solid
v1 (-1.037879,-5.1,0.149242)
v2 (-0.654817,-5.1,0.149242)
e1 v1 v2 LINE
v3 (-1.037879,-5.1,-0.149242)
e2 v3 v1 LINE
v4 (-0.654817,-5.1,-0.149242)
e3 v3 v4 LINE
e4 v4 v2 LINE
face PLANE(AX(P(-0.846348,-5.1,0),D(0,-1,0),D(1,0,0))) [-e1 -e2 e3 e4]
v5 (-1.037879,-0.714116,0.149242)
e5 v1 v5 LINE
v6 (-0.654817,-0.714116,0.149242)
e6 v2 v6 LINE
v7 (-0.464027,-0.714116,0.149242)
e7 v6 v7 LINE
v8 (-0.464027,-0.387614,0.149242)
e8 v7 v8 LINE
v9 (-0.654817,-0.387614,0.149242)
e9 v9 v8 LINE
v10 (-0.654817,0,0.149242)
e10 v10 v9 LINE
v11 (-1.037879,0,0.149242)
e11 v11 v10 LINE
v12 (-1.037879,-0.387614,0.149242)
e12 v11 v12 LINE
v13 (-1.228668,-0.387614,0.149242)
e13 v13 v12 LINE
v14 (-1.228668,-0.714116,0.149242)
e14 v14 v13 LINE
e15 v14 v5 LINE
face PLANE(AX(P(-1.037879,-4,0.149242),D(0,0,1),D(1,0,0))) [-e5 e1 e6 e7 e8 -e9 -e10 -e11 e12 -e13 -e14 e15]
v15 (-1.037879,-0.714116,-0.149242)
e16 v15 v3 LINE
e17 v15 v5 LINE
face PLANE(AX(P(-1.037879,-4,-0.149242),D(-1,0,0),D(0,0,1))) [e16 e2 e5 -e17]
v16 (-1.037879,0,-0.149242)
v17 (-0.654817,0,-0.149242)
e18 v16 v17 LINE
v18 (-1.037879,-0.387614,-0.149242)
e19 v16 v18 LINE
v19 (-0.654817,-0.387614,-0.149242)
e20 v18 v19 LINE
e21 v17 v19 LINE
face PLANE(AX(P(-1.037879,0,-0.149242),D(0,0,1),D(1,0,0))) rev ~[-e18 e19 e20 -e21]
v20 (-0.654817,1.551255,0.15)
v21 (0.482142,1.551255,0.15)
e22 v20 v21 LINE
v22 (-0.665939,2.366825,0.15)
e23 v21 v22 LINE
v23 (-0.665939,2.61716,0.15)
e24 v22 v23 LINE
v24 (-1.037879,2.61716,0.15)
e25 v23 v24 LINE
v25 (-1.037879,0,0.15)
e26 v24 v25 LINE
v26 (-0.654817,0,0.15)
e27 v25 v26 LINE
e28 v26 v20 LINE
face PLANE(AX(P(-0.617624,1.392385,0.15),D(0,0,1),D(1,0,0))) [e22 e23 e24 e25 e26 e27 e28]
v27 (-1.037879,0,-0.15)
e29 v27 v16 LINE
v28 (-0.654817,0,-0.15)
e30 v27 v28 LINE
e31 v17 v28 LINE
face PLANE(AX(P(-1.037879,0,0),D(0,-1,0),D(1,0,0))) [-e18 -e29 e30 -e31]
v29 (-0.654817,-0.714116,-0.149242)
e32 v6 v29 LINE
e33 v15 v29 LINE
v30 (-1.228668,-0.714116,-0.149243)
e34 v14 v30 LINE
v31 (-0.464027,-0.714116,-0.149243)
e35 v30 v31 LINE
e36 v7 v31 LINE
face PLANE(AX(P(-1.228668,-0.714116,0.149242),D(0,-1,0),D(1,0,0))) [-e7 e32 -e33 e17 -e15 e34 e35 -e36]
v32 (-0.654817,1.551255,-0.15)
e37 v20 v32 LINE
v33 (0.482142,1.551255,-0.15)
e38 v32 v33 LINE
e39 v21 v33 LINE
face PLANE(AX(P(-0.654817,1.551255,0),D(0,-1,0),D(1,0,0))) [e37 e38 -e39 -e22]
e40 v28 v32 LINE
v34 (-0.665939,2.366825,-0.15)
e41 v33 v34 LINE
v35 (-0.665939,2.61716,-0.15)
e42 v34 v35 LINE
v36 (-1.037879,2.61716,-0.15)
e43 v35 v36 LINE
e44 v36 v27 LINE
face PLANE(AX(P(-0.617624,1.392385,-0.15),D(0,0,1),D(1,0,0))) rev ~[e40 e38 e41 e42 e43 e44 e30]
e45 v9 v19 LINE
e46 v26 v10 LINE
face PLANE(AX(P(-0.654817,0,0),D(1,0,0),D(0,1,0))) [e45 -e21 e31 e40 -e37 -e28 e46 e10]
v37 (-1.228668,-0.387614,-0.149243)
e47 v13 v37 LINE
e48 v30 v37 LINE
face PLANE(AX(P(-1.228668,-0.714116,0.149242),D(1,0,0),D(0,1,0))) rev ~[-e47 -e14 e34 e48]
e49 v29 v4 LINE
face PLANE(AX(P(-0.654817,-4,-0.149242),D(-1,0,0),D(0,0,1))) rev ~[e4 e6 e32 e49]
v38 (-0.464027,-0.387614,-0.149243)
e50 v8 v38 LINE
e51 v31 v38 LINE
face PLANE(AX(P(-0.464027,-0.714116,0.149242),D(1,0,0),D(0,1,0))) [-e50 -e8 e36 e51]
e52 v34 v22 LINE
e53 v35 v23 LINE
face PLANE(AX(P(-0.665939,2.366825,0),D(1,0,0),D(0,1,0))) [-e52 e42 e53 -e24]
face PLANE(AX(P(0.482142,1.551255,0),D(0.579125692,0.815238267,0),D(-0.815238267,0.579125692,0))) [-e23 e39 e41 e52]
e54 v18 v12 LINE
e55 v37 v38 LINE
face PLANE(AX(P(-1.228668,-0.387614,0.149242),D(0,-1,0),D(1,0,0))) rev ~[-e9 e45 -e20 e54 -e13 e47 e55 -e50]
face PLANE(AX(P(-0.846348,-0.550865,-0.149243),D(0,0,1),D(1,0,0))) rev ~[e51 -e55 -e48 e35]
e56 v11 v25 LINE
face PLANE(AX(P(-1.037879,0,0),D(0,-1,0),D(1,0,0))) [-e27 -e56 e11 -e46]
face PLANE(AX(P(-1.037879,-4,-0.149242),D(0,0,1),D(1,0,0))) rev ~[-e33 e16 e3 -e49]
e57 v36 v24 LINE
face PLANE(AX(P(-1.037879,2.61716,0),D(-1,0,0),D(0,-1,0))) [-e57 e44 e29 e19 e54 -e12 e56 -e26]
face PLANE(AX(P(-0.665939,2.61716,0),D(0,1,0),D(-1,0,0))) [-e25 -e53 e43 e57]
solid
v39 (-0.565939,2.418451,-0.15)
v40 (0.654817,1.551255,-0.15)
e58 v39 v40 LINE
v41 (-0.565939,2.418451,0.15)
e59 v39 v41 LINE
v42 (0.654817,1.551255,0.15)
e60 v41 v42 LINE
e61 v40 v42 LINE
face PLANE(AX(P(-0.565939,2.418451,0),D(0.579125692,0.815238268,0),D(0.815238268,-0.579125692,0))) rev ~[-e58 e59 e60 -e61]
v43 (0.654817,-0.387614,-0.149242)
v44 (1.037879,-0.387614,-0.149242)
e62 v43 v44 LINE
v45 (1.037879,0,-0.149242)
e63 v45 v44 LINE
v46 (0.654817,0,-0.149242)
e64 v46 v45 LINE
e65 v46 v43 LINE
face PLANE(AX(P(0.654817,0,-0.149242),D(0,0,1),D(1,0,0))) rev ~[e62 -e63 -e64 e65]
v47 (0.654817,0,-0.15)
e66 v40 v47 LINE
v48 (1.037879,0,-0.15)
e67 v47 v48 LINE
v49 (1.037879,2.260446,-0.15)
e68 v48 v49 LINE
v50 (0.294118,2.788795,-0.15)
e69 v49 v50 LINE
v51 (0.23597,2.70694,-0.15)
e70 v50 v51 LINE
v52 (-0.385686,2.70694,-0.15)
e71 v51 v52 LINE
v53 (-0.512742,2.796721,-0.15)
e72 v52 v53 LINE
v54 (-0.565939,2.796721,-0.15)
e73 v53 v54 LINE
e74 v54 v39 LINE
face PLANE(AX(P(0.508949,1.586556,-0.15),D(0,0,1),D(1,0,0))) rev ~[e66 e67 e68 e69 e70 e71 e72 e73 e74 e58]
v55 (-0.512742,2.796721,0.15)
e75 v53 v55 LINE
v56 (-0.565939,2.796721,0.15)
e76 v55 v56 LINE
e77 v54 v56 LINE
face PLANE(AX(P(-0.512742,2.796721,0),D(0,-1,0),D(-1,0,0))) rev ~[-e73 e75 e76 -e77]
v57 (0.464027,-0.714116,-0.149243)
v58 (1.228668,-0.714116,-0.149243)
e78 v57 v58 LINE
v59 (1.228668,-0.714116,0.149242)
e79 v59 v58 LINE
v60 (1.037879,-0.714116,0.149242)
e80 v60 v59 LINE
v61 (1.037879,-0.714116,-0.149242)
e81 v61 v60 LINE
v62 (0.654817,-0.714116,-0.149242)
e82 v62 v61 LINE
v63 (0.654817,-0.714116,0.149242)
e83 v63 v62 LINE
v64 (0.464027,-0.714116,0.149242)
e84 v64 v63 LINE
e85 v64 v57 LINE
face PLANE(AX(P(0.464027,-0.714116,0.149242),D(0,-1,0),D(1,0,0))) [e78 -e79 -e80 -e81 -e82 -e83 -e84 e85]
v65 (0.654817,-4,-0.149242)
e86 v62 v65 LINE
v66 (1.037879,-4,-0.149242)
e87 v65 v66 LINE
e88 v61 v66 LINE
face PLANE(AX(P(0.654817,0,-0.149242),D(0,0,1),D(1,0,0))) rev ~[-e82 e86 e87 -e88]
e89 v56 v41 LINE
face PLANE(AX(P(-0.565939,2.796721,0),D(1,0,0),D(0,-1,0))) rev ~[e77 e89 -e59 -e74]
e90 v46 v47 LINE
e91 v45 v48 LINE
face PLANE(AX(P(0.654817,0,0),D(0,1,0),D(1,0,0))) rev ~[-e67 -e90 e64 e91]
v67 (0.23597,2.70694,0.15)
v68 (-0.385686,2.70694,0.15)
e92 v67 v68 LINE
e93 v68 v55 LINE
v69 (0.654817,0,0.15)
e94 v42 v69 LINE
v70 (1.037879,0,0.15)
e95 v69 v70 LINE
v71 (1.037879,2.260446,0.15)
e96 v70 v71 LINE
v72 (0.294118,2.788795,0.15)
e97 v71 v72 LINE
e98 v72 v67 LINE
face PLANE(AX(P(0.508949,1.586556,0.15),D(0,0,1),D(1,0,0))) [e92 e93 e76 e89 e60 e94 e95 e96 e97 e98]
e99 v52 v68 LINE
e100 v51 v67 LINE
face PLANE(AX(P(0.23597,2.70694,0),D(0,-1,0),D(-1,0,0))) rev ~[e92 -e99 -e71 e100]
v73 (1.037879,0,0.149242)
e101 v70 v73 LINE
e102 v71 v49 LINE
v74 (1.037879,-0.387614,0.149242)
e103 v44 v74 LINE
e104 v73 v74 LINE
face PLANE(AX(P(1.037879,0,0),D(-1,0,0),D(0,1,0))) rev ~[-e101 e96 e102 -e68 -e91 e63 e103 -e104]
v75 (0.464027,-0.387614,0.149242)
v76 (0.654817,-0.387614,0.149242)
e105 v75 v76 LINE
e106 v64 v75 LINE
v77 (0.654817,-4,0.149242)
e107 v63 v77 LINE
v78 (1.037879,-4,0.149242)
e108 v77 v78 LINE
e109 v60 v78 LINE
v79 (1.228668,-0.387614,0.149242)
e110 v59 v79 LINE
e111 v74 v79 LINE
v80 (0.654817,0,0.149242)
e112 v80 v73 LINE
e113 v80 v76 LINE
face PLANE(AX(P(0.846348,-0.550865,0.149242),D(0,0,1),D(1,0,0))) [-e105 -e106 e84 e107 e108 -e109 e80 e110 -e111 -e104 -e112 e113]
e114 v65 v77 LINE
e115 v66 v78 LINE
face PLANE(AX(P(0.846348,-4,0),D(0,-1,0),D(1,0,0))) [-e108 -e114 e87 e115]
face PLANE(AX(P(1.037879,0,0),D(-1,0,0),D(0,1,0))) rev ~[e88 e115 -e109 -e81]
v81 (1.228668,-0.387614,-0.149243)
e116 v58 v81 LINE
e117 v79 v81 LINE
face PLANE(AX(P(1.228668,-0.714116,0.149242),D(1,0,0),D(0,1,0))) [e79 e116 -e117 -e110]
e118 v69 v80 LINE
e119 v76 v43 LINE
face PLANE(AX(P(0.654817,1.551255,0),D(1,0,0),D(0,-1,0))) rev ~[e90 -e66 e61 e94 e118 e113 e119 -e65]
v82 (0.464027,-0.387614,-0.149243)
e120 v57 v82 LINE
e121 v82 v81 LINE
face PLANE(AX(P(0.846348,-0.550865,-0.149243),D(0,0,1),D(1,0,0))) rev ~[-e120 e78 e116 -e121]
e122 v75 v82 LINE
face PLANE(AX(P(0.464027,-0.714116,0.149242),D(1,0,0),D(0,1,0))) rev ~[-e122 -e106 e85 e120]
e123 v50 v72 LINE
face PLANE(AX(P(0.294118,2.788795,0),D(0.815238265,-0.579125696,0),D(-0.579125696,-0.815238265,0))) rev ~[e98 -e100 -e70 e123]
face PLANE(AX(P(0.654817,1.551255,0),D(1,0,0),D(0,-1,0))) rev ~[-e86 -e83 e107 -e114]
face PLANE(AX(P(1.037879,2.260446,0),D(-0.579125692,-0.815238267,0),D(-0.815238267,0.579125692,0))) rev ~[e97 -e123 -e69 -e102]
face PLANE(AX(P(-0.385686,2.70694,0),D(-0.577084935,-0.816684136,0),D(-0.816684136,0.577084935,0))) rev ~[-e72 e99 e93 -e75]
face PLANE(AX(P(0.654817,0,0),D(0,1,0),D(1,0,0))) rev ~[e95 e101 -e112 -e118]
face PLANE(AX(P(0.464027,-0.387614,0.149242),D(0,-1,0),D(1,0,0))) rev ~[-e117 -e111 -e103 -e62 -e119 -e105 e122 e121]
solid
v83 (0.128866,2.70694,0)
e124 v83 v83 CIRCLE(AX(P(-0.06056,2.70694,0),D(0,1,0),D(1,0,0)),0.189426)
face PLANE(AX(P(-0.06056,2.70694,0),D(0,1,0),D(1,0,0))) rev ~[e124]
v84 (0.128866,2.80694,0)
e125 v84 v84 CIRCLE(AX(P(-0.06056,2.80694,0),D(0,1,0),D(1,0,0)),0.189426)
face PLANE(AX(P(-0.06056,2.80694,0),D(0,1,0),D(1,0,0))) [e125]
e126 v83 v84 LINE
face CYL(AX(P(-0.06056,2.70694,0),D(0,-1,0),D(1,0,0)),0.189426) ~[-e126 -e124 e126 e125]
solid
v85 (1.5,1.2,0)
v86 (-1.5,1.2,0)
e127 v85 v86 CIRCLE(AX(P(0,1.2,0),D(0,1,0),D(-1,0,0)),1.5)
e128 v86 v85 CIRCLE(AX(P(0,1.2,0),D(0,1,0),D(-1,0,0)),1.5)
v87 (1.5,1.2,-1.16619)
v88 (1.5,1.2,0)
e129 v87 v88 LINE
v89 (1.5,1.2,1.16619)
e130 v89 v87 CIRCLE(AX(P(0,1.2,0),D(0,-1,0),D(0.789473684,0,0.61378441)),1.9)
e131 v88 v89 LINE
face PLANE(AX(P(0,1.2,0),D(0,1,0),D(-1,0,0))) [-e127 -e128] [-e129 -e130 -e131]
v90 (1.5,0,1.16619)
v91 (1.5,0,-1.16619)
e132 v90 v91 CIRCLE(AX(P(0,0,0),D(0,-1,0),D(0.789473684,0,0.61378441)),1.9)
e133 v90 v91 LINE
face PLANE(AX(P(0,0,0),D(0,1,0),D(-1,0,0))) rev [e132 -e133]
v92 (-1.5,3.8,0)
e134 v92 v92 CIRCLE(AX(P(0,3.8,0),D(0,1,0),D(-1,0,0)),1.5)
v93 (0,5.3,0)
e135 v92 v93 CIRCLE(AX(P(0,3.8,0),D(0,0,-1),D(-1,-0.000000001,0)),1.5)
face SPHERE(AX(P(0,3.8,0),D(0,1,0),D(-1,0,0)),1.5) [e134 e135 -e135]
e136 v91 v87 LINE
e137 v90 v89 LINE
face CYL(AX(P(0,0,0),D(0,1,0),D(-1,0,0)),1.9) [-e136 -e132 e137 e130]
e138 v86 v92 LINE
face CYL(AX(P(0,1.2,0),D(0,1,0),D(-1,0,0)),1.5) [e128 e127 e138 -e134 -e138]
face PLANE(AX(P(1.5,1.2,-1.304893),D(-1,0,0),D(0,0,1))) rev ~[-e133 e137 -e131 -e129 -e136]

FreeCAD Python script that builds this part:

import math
import FreeCAD as App
import Part
import Sketcher
from FreeCAD import Vector
Q = App.Units.Quantity


def add_polygon(sketch, points):
    """Adds a closed chain of lines whose ends are joined by coincident constraints."""
    first, n = sketch.GeometryCount, len(points)
    for a, b in zip(points, points[1:] + points[:1]):
        sketch.addGeometry(Part.LineSegment(App.Vector(*a, 0), App.Vector(*b, 0)), False)
    for i in range(n):
        sketch.addConstraint(Sketcher.Constraint("Coincident", first + i, 2, first + (i + 1) % n, 1))

doc = App.newDocument("Part")
body = doc.addObject("PartDesign::Body", "Body")

sketch1 = body.newObject("Sketcher::SketchObject", "Sketch")
sketch1.AttachmentSupport = (doc.getObject("XY_Plane"), [""])
sketch1.MapMode = "FlatFace"
sketch1.addGeometry(Part.LineSegment(Vector(-1.9, 0, 0), Vector(0, 0, 0)), False)
sketch1.addGeometry(Part.LineSegment(Vector(0, 0, 0), Vector(0, 5.3, 0)), False)
sketch1.addGeometry(Part.ArcOfCircle(Part.Circle(Vector(0, 3.8, 0), Vector(0, 0, 1), 1.5), math.radians(90), math.radians(180)), False)
sketch1.addGeometry(Part.LineSegment(Vector(-1.5, 3.8, 0), Vector(-1.5, 1.2, 0)), False)
sketch1.addGeometry(Part.LineSegment(Vector(-1.5, 1.2, 0), Vector(-1.9, 1.2, 0)), False)
sketch1.addGeometry(Part.LineSegment(Vector(-1.9, 1.2, 0), Vector(-1.9, 0, 0)), False)
sketch1.addConstraint(Sketcher.Constraint("Coincident", 0, 2, 1, 1))
sketch1.addConstraint(Sketcher.Constraint("Coincident", 1, 2, 2, 1))
sketch1.addConstraint(Sketcher.Constraint("Tangent", 2, 2, 3, 1))
sketch1.addConstraint(Sketcher.Constraint("Coincident", 3, 2, 4, 1))
sketch1.addConstraint(Sketcher.Constraint("Coincident", 4, 2, 5, 1))
sketch1.addConstraint(Sketcher.Constraint("Coincident", 5, 2, 0, 1))
sketch1.addConstraint(Sketcher.Constraint("Horizontal", 0))
sketch1.addConstraint(Sketcher.Constraint("Vertical", 1))
sketch1.addConstraint(Sketcher.Constraint("Vertical", 3))
sketch1.addConstraint(Sketcher.Constraint("Horizontal", 4))
sketch1.addConstraint(Sketcher.Constraint("Vertical", 5))
sketch1.addConstraint(Sketcher.Constraint("Coincident", 0, 2, -1, 1))
sketch1.addConstraint(Sketcher.Constraint("PointOnObject", 2, 3, -2))
sketch1.addConstraint(Sketcher.Constraint("Radius", 2, Q("1.5 mm")))
sketch1.addConstraint(Sketcher.Constraint("DistanceX", 0, 1, 0, 2, Q("1.9 mm")))
sketch1.addConstraint(Sketcher.Constraint("DistanceY", 1, 1, 1, 2, Q("5.3 mm")))
sketch1.addConstraint(Sketcher.Constraint("DistanceY", 3, 2, 3, 1, Q("2.6 mm")))
revolution = body.newObject("PartDesign::Revolution", "Revolution")
revolution.Profile = sketch1
revolution.ReferenceAxis = (sketch1, ["V_Axis"])
revolution.Angle = 360

sketch2 = body.newObject("Sketcher::SketchObject", "Sketch001")
sketch2.AttachmentSupport = (doc.getObject("XZ_Plane"), [""])
sketch2.MapMode = "FlatFace"
sketch2.AttachmentOffset = App.Placement(Vector(0, 0, -1.2), App.Rotation())
add_polygon(sketch2, [(1.5, -1.304893), (1.5, 1.925401), (2.013611, 1.925401), (2.013611, -1.304893)])
sketch2.addConstraint(Sketcher.Constraint("Vertical", 0))
sketch2.addConstraint(Sketcher.Constraint("Horizontal", 1))
sketch2.addConstraint(Sketcher.Constraint("Vertical", 2))
sketch2.addConstraint(Sketcher.Constraint("Horizontal", 3))
sketch2.addConstraint(Sketcher.Constraint("DistanceX", -1, 1, 0, 2, Q("1.5 mm")))
sketch2.addConstraint(Sketcher.Constraint("DistanceX", 1, 1, 1, 2, Q("0.513611 mm")))
sketch2.addConstraint(Sketcher.Constraint("DistanceY", -1, 1, 0, 2, Q("1.925401 mm")))
sketch2.addConstraint(Sketcher.Constraint("DistanceY", 0, 1, 0, 2, Q("3.230294 mm")))
pocket1 = body.newObject("PartDesign::Pocket", "Pocket")
pocket1.Profile = sketch2
pocket1.Length = 10
pocket1.Reversed = True
body2 = doc.addObject("PartDesign::Body", "Body001")

sketch3 = body2.newObject("Sketcher::SketchObject", "Sketch002")
sketch3.AttachmentSupport = (doc.getObject("XZ_Plane001"), [""])
sketch3.MapMode = "FlatFace"
add_polygon(sketch3, [(-1.037879, 0.149242), (-1.037879, -0.149242), (-0.654817, -0.149242), (-0.654817, 0.149242)])
sketch3.addConstraint(Sketcher.Constraint("Vertical", 0))
sketch3.addConstraint(Sketcher.Constraint("Horizontal", 1))
sketch3.addConstraint(Sketcher.Constraint("Vertical", 2))
sketch3.addConstraint(Sketcher.Constraint("Horizontal", 3))
sketch3.addConstraint(Sketcher.Constraint("DistanceX", 1, 1, 1, 2, Q("0.383062 mm")))
sketch3.addConstraint(Sketcher.Constraint("DistanceY", 0, 2, 0, 1, Q("0.298485 mm")))
sketch3.addConstraint(Sketcher.Constraint("DistanceX", 0, 2, -1, 1, Q("1.037879 mm")))
sketch3.addConstraint(Sketcher.Constraint("DistanceY", 0, 2, -1, 1, Q("0.149242 mm")))
pad1 = body2.newObject("PartDesign::Pad", "Pad")
pad1.Profile = sketch3
pad1.Length = 4
body3 = doc.addObject("PartDesign::Body", "Body002")
body3.AllowCompound = True

sketch4 = body3.newObject("Sketcher::SketchObject", "Sketch003")
sketch4.AttachmentSupport = (doc.getObject("XZ_Plane002"), [""])
sketch4.MapMode = "FlatFace"
add_polygon(sketch4, [(0.654817, 0.149242), (0.654817, -0.149242), (1.037879, -0.149242), (1.037879, 0.149242)])
sketch4.addConstraint(Sketcher.Constraint("Vertical", 0))
sketch4.addConstraint(Sketcher.Constraint("Horizontal", 1))
sketch4.addConstraint(Sketcher.Constraint("Vertical", 2))
sketch4.addConstraint(Sketcher.Constraint("Horizontal", 3))
sketch4.addConstraint(Sketcher.Constraint("DistanceX", 1, 1, 1, 2, Q("0.383062 mm")))
sketch4.addConstraint(Sketcher.Constraint("DistanceY", 0, 2, 0, 1, Q("0.298485 mm")))
sketch4.addConstraint(Sketcher.Constraint("DistanceX", -1, 1, 1, 2, Q("1.037879 mm")))
sketch4.addConstraint(Sketcher.Constraint("DistanceY", 0, 2, -1, 1, Q("0.149242 mm")))
pad2 = body3.newObject("PartDesign::Pad", "Pad001")
pad2.Profile = sketch4
pad2.Length = 4
doc.recompute()

boolean = body3.newObject("PartDesign::Boolean", "Boolean")
boolean.Type = "Fuse"
boolean.addObjects([body2])

sketch5 = body3.newObject("Sketcher::SketchObject", "Sketch004")
sketch5.AttachmentSupport = (doc.getObject("XY_Plane002"), [""])
sketch5.MapMode = "FlatFace"
add_polygon(sketch5, [(1.037879, 2.260446), (0.294118, 2.788795), (0.23597, 2.70694), (-0.385686, 2.70694), (-0.512742, 2.796721), (-0.565939, 2.796721), (-0.565939, 2.418451), (0.654817, 1.551255), (0.654817, 0), (1.037879, 0)])
add_polygon(sketch5, [(0.482142, 1.551255), (-0.665939, 2.366825), (-0.665939, 2.61716), (-1.037879, 2.61716), (-1.037879, 0), (-0.654817, 0), (-0.654817, 1.551255)])
sketch5.addConstraint(Sketcher.Constraint("Horizontal", 2))
sketch5.addConstraint(Sketcher.Constraint("Horizontal", 4))
sketch5.addConstraint(Sketcher.Constraint("Vertical", 5))
sketch5.addConstraint(Sketcher.Constraint("Vertical", 7))
sketch5.addConstraint(Sketcher.Constraint("Horizontal", 8))
sketch5.addConstraint(Sketcher.Constraint("Vertical", 9))
sketch5.addConstraint(Sketcher.Constraint("Vertical", 11))
sketch5.addConstraint(Sketcher.Constraint("Horizontal", 12))
sketch5.addConstraint(Sketcher.Constraint("Vertical", 13))
sketch5.addConstraint(Sketcher.Constraint("Horizontal", 14))
sketch5.addConstraint(Sketcher.Constraint("Vertical", 15))
sketch5.addConstraint(Sketcher.Constraint("Horizontal", 16))
sketch5.addConstraint(Sketcher.Constraint("Symmetric", 8, 2, 13, 2, -1, 1))
sketch5.addConstraint(Sketcher.Constraint("Symmetric", 7, 2, 14, 2, -2))
sketch5.addConstraint(Sketcher.Constraint("Perpendicular", 0, 1))
sketch5.addConstraint(Sketcher.Constraint("Perpendicular", 1, 6))
sketch5.addConstraint(Sketcher.Constraint("Parallel", 6, 10))
sketch5.addConstraint(Sketcher.Constraint("Horizontal", 6, 2, 15, 2))
sketch5.addConstraint(Sketcher.Constraint("DistanceX", 10, 2, 5, 2, Q("0.1 mm")))
sketch5.addConstraint(Sketcher.Constraint("DistanceX", 12, 2, 12, 1, Q("0.371939 mm")))
sketch5.addConstraint(Sketcher.Constraint("DistanceX", 16, 1, 16, 2, Q("1.136959 mm")))
sketch5.addConstraint(Sketcher.Constraint("DistanceY", 5, 2, 5, 1, Q("0.37827 mm")))
sketch5.addConstraint(Sketcher.Constraint("DistanceY", 13, 2, 13, 1, Q("2.61716 mm")))
sketch5.addConstraint(Sketcher.Constraint("DistanceX", 0, 2, 6, 2, Q("0.360699 mm")))
sketch5.addConstraint(Sketcher.Constraint("DistanceX", 2, 2, 2, 1, Q("0.621655 mm")))
sketch5.addConstraint(Sketcher.Constraint("DistanceX", 4, 2, 4, 1, Q("0.053197 mm")))
sketch5.addConstraint(Sketcher.Constraint("DistanceX", 8, 1, 8, 2, Q("0.383062 mm")))
sketch5.addConstraint(Sketcher.Constraint("DistanceY", 7, 2, 7, 1, Q("1.551255 mm")))
sketch5.addConstraint(Sketcher.Constraint("DistanceY", 9, 1, 9, 2, Q("2.260446 mm")))
sketch5.addConstraint(Sketcher.Constraint("DistanceY", 11, 1, 11, 2, Q("0.250335 mm")))
sketch5.addConstraint(Sketcher.Constraint("DistanceX", -1, 1, 1, 2, Q("0.23597 mm")))
sketch5.addConstraint(Sketcher.Constraint("DistanceY", -1, 1, 1, 2, Q("2.70694 mm")))
pad3 = body3.newObject("PartDesign::Pad", "Pad002")
pad3.Profile = sketch5
pad3.Length = 0.3
pad3.Midplane = True

sketch6 = body3.newObject("Sketcher::SketchObject", "Sketch005")
sketch6.AttachmentSupport = (doc.getObject("XY_Plane002"), [""])
sketch6.MapMode = "FlatFace"
sketch6.AttachmentOffset = App.Placement(Vector(0, 0, 0.149242), App.Rotation())
add_polygon(sketch6, [(0.464027, -0.387614), (0.464027, -0.714116), (1.228668, -0.714116), (1.228668, -0.387614)])
add_polygon(sketch6, [(-1.228668, -0.387614), (-1.228668, -0.714116), (-0.464027, -0.714116), (-0.464027, -0.387614)])
sketch6.addConstraint(Sketcher.Constraint("Vertical", 0))
sketch6.addConstraint(Sketcher.Constraint("Horizontal", 1))
sketch6.addConstraint(Sketcher.Constraint("Vertical", 2))
sketch6.addConstraint(Sketcher.Constraint("Horizontal", 3))
sketch6.addConstraint(Sketcher.Constraint("Vertical", 4))
sketch6.addConstraint(Sketcher.Constraint("Horizontal", 5))
sketch6.addConstraint(Sketcher.Constraint("Vertical", 6))
sketch6.addConstraint(Sketcher.Constraint("Horizontal", 7))
sketch6.addConstraint(Sketcher.Constraint("Symmetric", 1, 2, 4, 2, -2))
sketch6.addConstraint(Sketcher.Constraint("Symmetric", 3, 2, 6, 2, -2))
sketch6.addConstraint(Sketcher.Constraint("DistanceX", 1, 1, 1, 2, Q("0.764642 mm")))
sketch6.addConstraint(Sketcher.Constraint("DistanceY", 0, 2, 0, 1, Q("0.326502 mm")))
sketch6.addConstraint(Sketcher.Constraint("DistanceX", -1, 1, 1, 2, Q("1.228668 mm")))
sketch6.addConstraint(Sketcher.Constraint("DistanceY", 0, 2, -1, 1, Q("0.714116 mm")))
pad4 = body3.newObject("PartDesign::Pad", "Pad003")
pad4.Profile = sketch6
pad4.Length = 0.298485
pad4.Reversed = True

sketch7 = body3.newObject("Sketcher::SketchObject", "Sketch006")
sketch7.AttachmentSupport = (doc.getObject("XZ_Plane002"), [""])
sketch7.MapMode = "FlatFace"
sketch7.AttachmentOffset = App.Placement(Vector(0, 0, 4), App.Rotation())
add_polygon(sketch7, [(-1.037879, 0.149242), (-1.037879, -0.149242), (-0.654817, -0.149242), (-0.654817, 0.149242)])
sketch7.addConstraint(Sketcher.Constraint("Vertical", 0))
sketch7.addConstraint(Sketcher.Constraint("Horizontal", 1))
sketch7.addConstraint(Sketcher.Constraint("Vertical", 2))
sketch7.addConstraint(Sketcher.Constraint("Horizontal", 3))
sketch7.addConstraint(Sketcher.Constraint("DistanceX", 1, 1, 1, 2, Q("0.383062 mm")))
sketch7.addConstraint(Sketcher.Constraint("DistanceY", 0, 2, 0, 1, Q("0.298485 mm")))
sketch7.addConstraint(Sketcher.Constraint("DistanceX", 0, 2, -1, 1, Q("1.037879 mm")))
sketch7.addConstraint(Sketcher.Constraint("DistanceY", 0, 2, -1, 1, Q("0.149242 mm")))
pad5 = body3.newObject("PartDesign::Pad", "Pad004")
pad5.Profile = sketch7
pad5.Length = 1.1
body4 = doc.addObject("PartDesign::Body", "Body003")

sketch8 = body4.newObject("Sketcher::SketchObject", "Sketch007")
sketch8.AttachmentSupport = (doc.getObject("XZ_Plane003"), [""])
sketch8.MapMode = "FlatFace"
sketch8.AttachmentOffset = App.Placement(Vector(0, 0, -2.70694), App.Rotation())
sketch8.addGeometry(Part.Circle(Vector(-0.06056, 0, 0), Vector(0, 0, 1), 0.189426), False)
sketch8.addConstraint(Sketcher.Constraint("PointOnObject", 0, 3, -1))
sketch8.addConstraint(Sketcher.Constraint("Diameter", 0, Q("0.378852 mm")))
sketch8.addConstraint(Sketcher.Constraint("DistanceX", 0, 3, -1, 1, Q("0.06056 mm")))
pad6 = body4.newObject("PartDesign::Pad", "Pad005")
pad6.Profile = sketch8
pad6.Length = 0.1
pad6.Reversed = True

doc.recompute()
